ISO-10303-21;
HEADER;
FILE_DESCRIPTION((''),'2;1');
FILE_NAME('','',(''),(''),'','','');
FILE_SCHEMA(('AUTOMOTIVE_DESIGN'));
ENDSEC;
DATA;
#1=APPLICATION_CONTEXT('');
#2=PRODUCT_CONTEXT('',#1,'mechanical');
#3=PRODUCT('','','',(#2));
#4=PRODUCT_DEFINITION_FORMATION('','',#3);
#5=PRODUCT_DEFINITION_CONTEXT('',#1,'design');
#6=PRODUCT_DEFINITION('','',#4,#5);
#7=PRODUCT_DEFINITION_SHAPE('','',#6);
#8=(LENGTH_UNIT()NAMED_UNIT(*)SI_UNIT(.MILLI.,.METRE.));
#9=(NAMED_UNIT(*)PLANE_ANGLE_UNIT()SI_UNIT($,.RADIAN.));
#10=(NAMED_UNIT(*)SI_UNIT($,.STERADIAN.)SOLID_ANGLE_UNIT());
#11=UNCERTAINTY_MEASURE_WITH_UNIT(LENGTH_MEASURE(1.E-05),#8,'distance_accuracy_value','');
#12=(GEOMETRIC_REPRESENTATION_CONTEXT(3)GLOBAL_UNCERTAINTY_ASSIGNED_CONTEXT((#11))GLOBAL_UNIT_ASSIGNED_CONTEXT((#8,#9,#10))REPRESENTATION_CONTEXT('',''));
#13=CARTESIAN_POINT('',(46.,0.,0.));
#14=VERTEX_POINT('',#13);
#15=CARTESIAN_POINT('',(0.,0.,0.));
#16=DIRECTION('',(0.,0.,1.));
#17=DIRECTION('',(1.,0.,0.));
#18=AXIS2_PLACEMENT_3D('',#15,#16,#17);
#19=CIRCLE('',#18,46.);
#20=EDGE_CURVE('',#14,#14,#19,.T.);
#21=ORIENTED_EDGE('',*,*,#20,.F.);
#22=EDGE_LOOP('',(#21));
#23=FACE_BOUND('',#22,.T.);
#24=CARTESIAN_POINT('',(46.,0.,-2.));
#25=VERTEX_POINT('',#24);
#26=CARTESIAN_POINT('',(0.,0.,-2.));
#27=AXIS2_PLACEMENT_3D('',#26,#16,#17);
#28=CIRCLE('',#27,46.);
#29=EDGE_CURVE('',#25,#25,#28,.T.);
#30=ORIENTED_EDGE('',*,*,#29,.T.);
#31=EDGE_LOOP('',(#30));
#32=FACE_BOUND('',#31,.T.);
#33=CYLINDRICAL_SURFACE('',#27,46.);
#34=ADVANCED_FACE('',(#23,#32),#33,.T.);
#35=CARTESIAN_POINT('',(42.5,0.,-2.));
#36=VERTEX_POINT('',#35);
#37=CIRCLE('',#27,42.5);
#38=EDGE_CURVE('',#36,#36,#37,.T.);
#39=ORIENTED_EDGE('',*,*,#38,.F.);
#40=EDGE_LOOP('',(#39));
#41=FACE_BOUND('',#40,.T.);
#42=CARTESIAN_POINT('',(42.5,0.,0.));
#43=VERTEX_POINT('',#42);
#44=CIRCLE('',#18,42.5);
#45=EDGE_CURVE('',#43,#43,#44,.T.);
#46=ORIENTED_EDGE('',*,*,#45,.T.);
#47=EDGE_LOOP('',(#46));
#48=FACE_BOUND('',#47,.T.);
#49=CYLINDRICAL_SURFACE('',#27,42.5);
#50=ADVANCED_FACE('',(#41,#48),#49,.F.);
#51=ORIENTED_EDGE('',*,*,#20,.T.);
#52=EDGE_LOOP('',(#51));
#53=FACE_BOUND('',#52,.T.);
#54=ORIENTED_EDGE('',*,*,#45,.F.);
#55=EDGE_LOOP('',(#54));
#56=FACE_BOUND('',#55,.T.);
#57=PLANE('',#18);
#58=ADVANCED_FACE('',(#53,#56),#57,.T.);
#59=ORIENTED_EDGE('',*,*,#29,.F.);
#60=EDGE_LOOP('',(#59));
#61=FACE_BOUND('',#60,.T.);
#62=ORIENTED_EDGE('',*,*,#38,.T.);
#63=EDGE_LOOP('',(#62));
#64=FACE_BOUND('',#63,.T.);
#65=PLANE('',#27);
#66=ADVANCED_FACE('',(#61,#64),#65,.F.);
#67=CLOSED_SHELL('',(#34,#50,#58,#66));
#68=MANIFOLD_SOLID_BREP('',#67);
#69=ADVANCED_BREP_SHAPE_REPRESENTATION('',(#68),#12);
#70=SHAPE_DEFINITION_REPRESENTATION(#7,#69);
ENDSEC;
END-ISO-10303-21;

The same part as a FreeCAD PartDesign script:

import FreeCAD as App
import Part
import Sketcher
from FreeCAD import Vector

doc = App.newDocument("Part")
body = doc.addObject("PartDesign::Body", "Body")

# Sketch on XY plane
sketch1 = body.newObject("Sketcher::SketchObject", "Sketch")
sketch1.AttachmentSupport = (doc.getObject("XY_Plane"), [""])
sketch1.MapMode = "FlatFace"
sketch1.addGeometry([
    Part.Circle(Vector(0, 0, 0), Vector(0, 0, 1), 46),
    Part.Circle(Vector(0, 0, 0), Vector(0, 0, 1), 42),
], False)
sketch1.addConstraint([
    Sketcher.Constraint("Coincident", 0, 3, -1, 1),
    Sketcher.Constraint("Coincident", 1, 3, -1, 1),
    Sketcher.Constraint("Diameter", 0, 92.0),
    Sketcher.Constraint("Diameter", 1, 85.0),
])
pad1 = body.newObject("PartDesign::Pad", "Pad")
pad1.Profile = sketch1
pad1.Length = 2
pad1.Reversed = True

doc.recompute()
